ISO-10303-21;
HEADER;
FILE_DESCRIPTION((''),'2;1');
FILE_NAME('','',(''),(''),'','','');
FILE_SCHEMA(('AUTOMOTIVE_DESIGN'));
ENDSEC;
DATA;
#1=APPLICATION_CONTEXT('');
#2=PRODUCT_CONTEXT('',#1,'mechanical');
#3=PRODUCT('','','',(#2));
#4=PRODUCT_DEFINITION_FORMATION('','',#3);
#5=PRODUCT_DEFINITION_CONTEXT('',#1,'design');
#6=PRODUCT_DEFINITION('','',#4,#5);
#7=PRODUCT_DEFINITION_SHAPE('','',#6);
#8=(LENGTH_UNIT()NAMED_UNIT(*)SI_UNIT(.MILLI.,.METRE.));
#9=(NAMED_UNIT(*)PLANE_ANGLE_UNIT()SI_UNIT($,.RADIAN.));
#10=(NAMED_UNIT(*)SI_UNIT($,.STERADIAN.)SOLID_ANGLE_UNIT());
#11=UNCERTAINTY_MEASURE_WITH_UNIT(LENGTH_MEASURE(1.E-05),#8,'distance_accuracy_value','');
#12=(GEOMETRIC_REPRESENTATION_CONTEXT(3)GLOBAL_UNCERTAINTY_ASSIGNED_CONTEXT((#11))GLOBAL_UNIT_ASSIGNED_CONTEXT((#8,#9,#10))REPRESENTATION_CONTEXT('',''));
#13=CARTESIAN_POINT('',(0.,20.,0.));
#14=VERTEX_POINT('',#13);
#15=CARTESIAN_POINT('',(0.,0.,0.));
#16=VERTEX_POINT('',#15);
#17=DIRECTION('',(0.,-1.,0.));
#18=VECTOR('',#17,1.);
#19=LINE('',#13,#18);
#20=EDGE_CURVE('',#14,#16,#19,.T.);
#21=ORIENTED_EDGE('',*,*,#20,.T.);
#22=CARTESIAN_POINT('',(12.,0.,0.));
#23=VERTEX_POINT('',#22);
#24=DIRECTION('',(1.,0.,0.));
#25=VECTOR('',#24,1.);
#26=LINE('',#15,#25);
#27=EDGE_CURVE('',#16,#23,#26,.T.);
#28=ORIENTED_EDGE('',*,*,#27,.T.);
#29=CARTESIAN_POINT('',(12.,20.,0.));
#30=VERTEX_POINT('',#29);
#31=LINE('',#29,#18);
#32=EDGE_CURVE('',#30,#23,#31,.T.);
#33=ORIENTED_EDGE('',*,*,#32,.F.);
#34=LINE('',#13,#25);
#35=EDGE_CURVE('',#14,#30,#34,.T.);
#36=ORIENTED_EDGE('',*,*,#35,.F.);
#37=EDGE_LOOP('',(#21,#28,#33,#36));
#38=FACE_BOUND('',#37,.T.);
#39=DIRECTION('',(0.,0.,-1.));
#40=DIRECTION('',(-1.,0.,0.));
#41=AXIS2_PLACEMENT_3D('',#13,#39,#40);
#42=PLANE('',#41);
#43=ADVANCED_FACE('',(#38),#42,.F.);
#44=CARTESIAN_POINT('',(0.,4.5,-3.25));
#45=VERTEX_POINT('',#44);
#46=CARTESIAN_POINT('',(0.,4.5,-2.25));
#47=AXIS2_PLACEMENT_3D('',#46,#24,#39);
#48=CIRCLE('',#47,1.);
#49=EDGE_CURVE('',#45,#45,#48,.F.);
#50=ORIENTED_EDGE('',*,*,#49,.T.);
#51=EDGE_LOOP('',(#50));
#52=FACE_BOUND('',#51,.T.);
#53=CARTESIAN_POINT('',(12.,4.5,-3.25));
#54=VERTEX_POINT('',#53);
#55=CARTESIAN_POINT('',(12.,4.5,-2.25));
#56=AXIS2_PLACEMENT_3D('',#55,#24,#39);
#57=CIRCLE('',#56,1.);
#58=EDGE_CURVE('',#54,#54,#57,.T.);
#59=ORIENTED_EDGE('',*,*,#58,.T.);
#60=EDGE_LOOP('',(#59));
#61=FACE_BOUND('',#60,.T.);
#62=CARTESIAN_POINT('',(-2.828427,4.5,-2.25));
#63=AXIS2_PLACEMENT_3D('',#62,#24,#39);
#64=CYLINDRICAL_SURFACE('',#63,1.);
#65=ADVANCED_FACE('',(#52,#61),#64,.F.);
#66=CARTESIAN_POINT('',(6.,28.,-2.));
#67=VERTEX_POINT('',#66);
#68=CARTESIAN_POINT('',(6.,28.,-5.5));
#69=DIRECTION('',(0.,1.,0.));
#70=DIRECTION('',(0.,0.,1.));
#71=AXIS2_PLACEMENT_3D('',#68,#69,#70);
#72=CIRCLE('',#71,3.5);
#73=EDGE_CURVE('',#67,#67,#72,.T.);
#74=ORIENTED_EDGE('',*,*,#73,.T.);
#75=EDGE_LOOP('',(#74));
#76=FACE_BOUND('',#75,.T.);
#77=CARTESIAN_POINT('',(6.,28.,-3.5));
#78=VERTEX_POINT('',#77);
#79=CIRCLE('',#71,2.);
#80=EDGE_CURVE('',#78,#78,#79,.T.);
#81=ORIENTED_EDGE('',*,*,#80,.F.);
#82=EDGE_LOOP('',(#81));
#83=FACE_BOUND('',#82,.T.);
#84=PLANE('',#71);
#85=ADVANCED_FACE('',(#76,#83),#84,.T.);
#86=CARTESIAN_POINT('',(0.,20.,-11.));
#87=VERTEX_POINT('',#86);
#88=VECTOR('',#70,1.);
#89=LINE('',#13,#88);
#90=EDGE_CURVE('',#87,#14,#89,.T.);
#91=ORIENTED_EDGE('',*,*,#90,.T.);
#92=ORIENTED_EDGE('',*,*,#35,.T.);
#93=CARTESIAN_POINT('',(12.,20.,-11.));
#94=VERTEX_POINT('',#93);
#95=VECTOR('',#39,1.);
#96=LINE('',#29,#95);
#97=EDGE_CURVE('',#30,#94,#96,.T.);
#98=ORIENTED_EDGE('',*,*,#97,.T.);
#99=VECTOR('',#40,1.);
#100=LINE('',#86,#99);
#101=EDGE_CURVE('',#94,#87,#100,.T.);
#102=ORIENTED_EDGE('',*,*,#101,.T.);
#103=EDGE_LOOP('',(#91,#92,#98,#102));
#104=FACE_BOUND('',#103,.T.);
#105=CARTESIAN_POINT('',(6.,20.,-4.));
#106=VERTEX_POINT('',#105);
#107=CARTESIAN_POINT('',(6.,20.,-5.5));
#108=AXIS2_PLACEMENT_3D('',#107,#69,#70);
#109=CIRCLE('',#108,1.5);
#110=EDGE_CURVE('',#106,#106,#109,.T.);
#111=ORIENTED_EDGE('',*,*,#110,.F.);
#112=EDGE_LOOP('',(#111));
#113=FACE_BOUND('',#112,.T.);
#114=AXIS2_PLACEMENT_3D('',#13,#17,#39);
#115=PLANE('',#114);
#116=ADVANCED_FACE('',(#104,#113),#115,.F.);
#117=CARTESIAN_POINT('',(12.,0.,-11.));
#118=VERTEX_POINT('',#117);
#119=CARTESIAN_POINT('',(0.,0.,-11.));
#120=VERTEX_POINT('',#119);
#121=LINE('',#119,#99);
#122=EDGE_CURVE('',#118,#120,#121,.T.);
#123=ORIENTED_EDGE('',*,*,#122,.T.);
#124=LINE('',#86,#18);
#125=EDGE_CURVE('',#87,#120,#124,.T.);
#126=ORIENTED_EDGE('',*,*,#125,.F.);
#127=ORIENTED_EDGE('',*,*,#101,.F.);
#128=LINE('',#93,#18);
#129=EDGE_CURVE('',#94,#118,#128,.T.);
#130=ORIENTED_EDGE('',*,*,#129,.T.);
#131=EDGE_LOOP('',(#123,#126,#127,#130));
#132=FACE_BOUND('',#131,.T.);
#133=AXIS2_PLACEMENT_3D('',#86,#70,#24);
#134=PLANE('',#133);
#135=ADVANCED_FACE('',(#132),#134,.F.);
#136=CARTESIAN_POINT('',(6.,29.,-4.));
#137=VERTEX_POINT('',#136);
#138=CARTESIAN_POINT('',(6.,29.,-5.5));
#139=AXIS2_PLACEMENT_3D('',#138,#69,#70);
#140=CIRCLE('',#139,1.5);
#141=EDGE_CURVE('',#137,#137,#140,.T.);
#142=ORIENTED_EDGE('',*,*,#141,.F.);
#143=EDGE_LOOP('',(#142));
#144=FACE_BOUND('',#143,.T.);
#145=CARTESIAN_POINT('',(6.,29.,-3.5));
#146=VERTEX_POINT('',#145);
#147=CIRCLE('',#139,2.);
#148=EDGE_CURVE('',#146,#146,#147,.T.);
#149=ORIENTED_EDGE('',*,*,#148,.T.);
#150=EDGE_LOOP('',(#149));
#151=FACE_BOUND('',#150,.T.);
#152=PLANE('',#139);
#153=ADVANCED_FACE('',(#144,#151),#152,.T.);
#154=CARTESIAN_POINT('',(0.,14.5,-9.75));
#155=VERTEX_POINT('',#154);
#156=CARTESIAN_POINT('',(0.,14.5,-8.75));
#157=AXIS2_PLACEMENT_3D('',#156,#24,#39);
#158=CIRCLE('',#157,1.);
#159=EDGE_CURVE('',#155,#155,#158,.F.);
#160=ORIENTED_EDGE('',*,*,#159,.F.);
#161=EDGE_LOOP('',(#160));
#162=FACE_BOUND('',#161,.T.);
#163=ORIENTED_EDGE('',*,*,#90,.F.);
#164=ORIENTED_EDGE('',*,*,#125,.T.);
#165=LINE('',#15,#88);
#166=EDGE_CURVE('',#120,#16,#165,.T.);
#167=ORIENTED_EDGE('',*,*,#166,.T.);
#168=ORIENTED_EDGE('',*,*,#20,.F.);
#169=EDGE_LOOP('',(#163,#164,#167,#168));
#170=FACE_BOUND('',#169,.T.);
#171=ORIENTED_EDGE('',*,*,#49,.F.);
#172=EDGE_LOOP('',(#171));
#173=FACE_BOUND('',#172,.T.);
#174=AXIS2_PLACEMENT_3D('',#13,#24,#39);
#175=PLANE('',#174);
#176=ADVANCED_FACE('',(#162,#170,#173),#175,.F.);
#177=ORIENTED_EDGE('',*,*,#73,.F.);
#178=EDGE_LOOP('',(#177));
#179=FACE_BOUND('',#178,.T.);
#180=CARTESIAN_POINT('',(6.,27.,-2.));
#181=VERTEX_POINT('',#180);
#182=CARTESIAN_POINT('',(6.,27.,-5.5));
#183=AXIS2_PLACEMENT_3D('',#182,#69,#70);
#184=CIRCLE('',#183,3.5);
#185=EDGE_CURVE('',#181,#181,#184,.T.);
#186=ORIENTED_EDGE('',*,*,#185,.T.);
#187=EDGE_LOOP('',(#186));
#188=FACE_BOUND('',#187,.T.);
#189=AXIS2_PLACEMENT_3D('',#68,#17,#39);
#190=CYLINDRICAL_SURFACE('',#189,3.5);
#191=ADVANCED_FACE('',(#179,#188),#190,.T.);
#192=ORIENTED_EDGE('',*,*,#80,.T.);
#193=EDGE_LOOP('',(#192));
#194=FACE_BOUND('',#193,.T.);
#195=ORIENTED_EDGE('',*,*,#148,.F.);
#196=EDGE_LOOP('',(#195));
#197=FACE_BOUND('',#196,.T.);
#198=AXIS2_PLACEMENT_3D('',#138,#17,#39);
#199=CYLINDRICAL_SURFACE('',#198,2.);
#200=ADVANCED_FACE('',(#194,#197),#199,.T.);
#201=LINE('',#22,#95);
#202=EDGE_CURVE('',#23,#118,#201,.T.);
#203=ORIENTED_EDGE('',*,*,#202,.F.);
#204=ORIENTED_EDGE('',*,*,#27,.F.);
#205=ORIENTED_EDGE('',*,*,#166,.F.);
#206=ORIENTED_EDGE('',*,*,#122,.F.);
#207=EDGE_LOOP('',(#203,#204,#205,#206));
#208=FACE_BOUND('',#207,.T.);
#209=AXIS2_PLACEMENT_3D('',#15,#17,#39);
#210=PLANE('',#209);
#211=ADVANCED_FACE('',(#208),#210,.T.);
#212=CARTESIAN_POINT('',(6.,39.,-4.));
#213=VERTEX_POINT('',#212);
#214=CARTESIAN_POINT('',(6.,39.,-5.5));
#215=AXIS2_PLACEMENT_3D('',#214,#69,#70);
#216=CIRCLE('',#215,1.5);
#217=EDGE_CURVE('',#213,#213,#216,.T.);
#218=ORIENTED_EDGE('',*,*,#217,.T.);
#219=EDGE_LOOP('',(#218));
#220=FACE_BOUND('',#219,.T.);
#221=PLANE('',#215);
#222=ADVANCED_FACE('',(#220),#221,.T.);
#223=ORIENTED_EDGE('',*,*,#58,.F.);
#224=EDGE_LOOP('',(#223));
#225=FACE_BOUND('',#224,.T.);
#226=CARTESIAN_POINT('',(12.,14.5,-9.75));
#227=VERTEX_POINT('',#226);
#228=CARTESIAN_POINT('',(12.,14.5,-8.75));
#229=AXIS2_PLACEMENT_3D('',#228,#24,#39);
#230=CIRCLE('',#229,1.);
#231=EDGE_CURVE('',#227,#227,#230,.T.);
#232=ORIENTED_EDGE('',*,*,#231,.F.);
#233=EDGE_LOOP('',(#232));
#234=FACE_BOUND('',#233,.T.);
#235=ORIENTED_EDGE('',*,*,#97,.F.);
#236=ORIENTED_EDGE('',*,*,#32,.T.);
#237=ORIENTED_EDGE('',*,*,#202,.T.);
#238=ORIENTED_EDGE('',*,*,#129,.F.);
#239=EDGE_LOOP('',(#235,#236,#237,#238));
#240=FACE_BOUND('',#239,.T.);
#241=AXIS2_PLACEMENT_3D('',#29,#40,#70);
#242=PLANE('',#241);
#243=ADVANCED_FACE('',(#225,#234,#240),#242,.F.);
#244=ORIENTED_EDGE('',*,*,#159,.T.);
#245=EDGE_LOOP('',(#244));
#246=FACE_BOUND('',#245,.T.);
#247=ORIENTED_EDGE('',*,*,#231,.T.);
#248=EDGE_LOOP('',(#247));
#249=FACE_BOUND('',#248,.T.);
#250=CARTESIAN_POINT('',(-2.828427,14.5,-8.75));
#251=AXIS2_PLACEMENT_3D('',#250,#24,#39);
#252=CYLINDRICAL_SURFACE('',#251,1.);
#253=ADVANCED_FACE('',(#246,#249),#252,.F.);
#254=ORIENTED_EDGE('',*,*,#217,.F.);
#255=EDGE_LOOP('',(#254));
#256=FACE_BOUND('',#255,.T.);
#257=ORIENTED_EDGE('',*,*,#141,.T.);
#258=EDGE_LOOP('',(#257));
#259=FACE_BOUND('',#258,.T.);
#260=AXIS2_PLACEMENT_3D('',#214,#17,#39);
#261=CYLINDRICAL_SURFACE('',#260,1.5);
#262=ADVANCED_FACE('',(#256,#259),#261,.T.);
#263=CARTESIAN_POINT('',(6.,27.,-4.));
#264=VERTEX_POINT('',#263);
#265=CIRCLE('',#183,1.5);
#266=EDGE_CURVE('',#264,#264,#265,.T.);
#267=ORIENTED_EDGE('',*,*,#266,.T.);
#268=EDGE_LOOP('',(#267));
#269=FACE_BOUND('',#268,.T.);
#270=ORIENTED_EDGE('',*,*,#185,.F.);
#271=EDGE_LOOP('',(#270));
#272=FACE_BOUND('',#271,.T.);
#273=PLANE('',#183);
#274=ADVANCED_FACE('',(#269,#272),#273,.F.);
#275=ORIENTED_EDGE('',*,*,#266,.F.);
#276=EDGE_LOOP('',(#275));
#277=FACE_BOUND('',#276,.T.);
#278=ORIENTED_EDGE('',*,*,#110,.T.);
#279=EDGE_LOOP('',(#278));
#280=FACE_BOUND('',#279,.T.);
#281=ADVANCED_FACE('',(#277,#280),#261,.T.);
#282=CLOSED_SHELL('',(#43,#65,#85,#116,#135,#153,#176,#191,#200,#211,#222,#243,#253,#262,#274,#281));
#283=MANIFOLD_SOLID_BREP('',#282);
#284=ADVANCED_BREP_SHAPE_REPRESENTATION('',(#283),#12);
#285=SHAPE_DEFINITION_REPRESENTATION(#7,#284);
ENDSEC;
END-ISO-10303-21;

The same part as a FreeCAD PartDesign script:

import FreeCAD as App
import Part
import Sketcher
from FreeCAD import Vector
Q = App.Units.Quantity


def add_polygon(sketch, points):
    """Adds a closed chain of lines whose ends are joined by coincident constraints."""
    first, n = sketch.GeometryCount, len(points)
    for a, b in zip(points, points[1:] + points[:1]):
        sketch.addGeometry(Part.LineSegment(App.Vector(*a, 0), App.Vector(*b, 0)), False)
    for i in range(n):
        sketch.addConstraint(Sketcher.Constraint("Coincident", first + i, 2, first + (i + 1) % n, 1))

doc = App.newDocument("Part")
body = doc.addObject("PartDesign::Body", "Body")

# Sketch on XZ plane
sketch1 = body.newObject("Sketcher::SketchObject", "Sketch")
sketch1.AttachmentSupport = (doc.getObject("XZ_Plane"), [""])
sketch1.MapMode = "FlatFace"
add_polygon(sketch1, [(0, -11), (0, 0), (12, 0), (12, -11)])  # lines 0-3
sketch1.addConstraint([
    Sketcher.Constraint("Vertical", 0),
    Sketcher.Constraint("Horizontal", 1),
    Sketcher.Constraint("Vertical", 2),
    Sketcher.Constraint("Horizontal", 3),
    Sketcher.Constraint("Coincident", 0, 2, -1, 1),
    Sketcher.Constraint("DistanceX", 1, 1, 1, 2, Q("12 mm")),
    Sketcher.Constraint("DistanceY", 0, 1, 0, 2, Q("11 mm")),
])
pad1 = body.newObject("PartDesign::Pad", "Pad")
pad1.Profile = sketch1
pad1.Length = 20
pad1.Reversed = True

# Sketch on XZ plane
sketch2 = body.newObject("Sketcher::SketchObject", "Sketch001")
sketch2.AttachmentSupport = (doc.getObject("XZ_Plane"), [""])
sketch2.MapMode = "FlatFace"
sketch2.AttachmentOffset = App.Placement(Vector(0, 0, -20), App.Rotation())
sketch2.addGeometry(Part.Circle(Vector(6, -5.5, 0), Vector(0, 0, 1), 1.5), False)
sketch2.addConstraint([
    Sketcher.Constraint("Diameter", 0, Q("3 mm")),
    Sketcher.Constraint("DistanceX", -1, 1, 0, 3, Q("6 mm")),
    Sketcher.Constraint("DistanceY", 0, 3, -1, 1, Q("5.5 mm")),
])
pad2 = body.newObject("PartDesign::Pad", "Pad001")
pad2.Profile = sketch2
pad2.Length = 19
pad2.Reversed = True

# Sketch on XZ plane
sketch3 = body.newObject("Sketcher::SketchObject", "Sketch002")
sketch3.AttachmentSupport = (doc.getObject("XZ_Plane"), [""])
sketch3.MapMode = "FlatFace"
sketch3.AttachmentOffset = App.Placement(Vector(0, 0, -27), App.Rotation())
sketch3.addGeometry(Part.Circle(Vector(6, -5.5, 0), Vector(0, 0, 1), 3.5), False)
sketch3.addConstraint([
    Sketcher.Constraint("Diameter", 0, Q("7 mm")),
    Sketcher.Constraint("DistanceX", -1, 1, 0, 3, Q("6 mm")),
    Sketcher.Constraint("DistanceY", 0, 3, -1, 1, Q("5.5 mm")),
])
pad3 = body.newObject("PartDesign::Pad", "Pad002")
pad3.Profile = sketch3
pad3.Length = 1
pad3.Reversed = True

# Sketch on XZ plane
sketch4 = body.newObject("Sketcher::SketchObject", "Sketch003")
sketch4.AttachmentSupport = (doc.getObject("XZ_Plane"), [""])
sketch4.MapMode = "FlatFace"
sketch4.AttachmentOffset = App.Placement(Vector(0, 0, -28), App.Rotation())
sketch4.addGeometry(Part.Circle(Vector(6, -5.5, 0), Vector(0, 0, 1), 2), False)
sketch4.addConstraint([
    Sketcher.Constraint("Diameter", 0, Q("4 mm")),
    Sketcher.Constraint("DistanceX", -1, 1, 0, 3, Q("6 mm")),
    Sketcher.Constraint("DistanceY", 0, 3, -1, 1, Q("5.5 mm")),
])
pad4 = body.newObject("PartDesign::Pad", "Pad003")
pad4.Profile = sketch4
pad4.Length = 1
pad4.Reversed = True

# Sketch on YZ plane
sketch5 = body.newObject("Sketcher::SketchObject", "Sketch004")
sketch5.AttachmentSupport = (doc.getObject("YZ_Plane"), [""])
sketch5.MapMode = "FlatFace"
sketch5.AttachmentOffset = App.Placement(Vector(0, 0, 12), App.Rotation())
sketch5.addGeometry([
    Part.Circle(Vector(4.5, -2.2, 0), Vector(0, 0, 1), 1),
    Part.Circle(Vector(14.5, -8.8, 0), Vector(0, 0, 1), 1),
], False)
sketch5.addConstraint([
    Sketcher.Constraint("Equal", 0, 1),
    Sketcher.Constraint("Diameter", 0, Q("2 mm")),
    Sketcher.Constraint("DistanceX", 0, 3, 1, 3, Q("10 mm")),
    Sketcher.Constraint("DistanceX", -1, 1, 0, 3, Q("4.5 mm")),
    Sketcher.Constraint("DistanceY", 1, 3, 0, 3, Q("6.5 mm")),
    Sketcher.Constraint("DistanceY", 0, 3, -1, 1, Q("2.25 mm")),
])
pocket1 = body.newObject("PartDesign::Pocket", "Pocket")
pocket1.Profile = sketch5
pocket1.Length = 12

doc.recompute()
